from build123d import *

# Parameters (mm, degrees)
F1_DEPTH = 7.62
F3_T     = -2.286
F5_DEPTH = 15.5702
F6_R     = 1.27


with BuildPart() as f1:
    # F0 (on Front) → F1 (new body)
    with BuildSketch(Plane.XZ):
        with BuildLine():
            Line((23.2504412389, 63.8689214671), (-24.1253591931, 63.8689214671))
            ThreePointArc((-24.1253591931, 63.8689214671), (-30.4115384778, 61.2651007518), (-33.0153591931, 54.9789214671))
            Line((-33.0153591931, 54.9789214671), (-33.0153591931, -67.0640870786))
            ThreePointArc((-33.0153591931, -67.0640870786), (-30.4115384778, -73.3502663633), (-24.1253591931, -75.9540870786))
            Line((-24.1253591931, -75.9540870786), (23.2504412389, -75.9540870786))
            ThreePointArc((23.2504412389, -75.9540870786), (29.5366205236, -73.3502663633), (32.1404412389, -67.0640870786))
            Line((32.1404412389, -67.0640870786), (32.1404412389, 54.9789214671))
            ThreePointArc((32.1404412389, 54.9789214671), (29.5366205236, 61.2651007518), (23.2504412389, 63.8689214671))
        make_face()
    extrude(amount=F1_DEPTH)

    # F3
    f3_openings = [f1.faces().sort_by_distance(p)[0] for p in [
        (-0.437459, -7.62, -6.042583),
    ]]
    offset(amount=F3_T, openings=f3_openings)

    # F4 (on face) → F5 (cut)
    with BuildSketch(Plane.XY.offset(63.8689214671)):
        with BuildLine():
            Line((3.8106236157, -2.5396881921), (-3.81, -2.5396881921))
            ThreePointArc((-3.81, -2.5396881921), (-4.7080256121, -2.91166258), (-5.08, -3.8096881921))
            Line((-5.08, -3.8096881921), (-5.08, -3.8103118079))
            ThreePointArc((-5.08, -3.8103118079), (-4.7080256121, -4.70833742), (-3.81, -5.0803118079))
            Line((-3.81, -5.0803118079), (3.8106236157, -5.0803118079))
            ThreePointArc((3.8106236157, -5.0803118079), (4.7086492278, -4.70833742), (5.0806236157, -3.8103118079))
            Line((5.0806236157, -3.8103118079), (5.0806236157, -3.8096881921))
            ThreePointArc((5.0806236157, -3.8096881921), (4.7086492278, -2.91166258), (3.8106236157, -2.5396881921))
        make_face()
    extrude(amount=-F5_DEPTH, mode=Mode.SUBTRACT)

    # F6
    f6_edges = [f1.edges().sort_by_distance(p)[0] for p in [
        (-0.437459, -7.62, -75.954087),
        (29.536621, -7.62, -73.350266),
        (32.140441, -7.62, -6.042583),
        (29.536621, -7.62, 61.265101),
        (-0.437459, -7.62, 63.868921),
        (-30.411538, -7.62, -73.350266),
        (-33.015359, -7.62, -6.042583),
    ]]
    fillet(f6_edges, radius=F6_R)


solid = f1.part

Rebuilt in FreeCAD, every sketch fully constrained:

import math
import FreeCAD as App
import Part
import Sketcher
from FreeCAD import Vector
Q = App.Units.Quantity


def edges_at(feature, points):
    """Names of the edges that pass closest to the given points."""
    edges = feature.Shape.Edges
    near = lambda p: min(range(len(edges)), key=lambda i: edges[i].distToShape(Part.Vertex(*p))[0])
    return sorted({f"Edge{near(p) + 1}" for p in points})


def faces_at(feature, points):
    """Names of the faces that lie closest to the given points."""
    faces = feature.Shape.Faces
    near = lambda p: min(range(len(faces)), key=lambda i: faces[i].distToShape(Part.Vertex(*p))[0])
    return sorted({f"Face{near(p) + 1}" for p in points})

doc = App.newDocument("Part")
body = doc.addObject("PartDesign::Body", "Body")

# Sketch on XZ plane
sketch1 = doc.addObject("Sketcher::SketchObject", "Sketch")
body.addObject(sketch1)
sketch1.AttachmentSupport = (doc.XZ_Plane, [""])
sketch1.MapMode = "FlatFace"
sketch1.addGeometry([
    Part.LineSegment(Vector(23.250441, 63.868921, 0), Vector(-24.125359, 63.868921, 0)),  # 0
    Part.ArcOfCircle(Part.Circle(Vector(-24.125359, 54.978921, 0), Vector(0, 0, 1), 8.89), math.radians(90), math.radians(180)),  # 1
    Part.LineSegment(Vector(-33.015359, 54.978921, 0), Vector(-33.015359, -67.064087, 0)),  # 2
    Part.ArcOfCircle(Part.Circle(Vector(-24.125359, -67.064087, 0), Vector(0, 0, 1), 8.89), math.radians(-180), math.radians(-90)),  # 3
    Part.LineSegment(Vector(-24.125359, -75.954087, 0), Vector(23.250441, -75.954087, 0)),  # 4
    Part.ArcOfCircle(Part.Circle(Vector(23.250441, -67.064087, 0), Vector(0, 0, 1), 8.89), math.radians(-90), math.radians(0)),  # 5
    Part.LineSegment(Vector(32.140441, -67.064087, 0), Vector(32.140441, 54.978921, 0)),  # 6
    Part.ArcOfCircle(Part.Circle(Vector(23.250441, 54.978921, 0), Vector(0, 0, 1), 8.89), math.radians(0), math.radians(90)),  # 7
], False)
sketch1.addConstraint([
    Sketcher.Constraint("Tangent", 0, 2, 1, 1),
    Sketcher.Constraint("Tangent", 1, 2, 2, 1),
    Sketcher.Constraint("Tangent", 2, 2, 3, 1),
    Sketcher.Constraint("Tangent", 3, 2, 4, 1),
    Sketcher.Constraint("Tangent", 4, 2, 5, 1),
    Sketcher.Constraint("Tangent", 5, 2, 6, 1),
    Sketcher.Constraint("Tangent", 6, 2, 7, 1),
    Sketcher.Constraint("Tangent", 7, 2, 0, 1),
    Sketcher.Constraint("Horizontal", 0),
    Sketcher.Constraint("Vertical", 2),
    Sketcher.Constraint("Horizontal", 4),
    Sketcher.Constraint("Vertical", 6),
    Sketcher.Constraint("Equal", 1, 3),
    Sketcher.Constraint("Equal", 3, 5),
    Sketcher.Constraint("Equal", 5, 7),
    Sketcher.Constraint("Radius", 1, Q("0.35 in")),
    Sketcher.Constraint("DistanceX", 0, 2, 0, 1, 47.3758),
    Sketcher.Constraint("DistanceY", 2, 2, 2, 1, 122.043009),
    Sketcher.Constraint("DistanceX", 1, 3, -1, 1, 24.125359),
    Sketcher.Constraint("DistanceY", -1, 1, 1, 3, 54.978921),
])
pad1 = doc.addObject("PartDesign::Pad", "Pad")
body.addObject(pad1)
pad1.Profile = sketch1
pad1.Length = Q("0.3 in")
doc.recompute()

thickness = doc.addObject("PartDesign::Thickness", "Thickness")
body.addObject(thickness)
thickness.Base = (pad1, faces_at(pad1, [(-0.437, -7.62, -6.043)]))
thickness.Value = Q("0.09 in")
thickness.Reversed = True
thickness.Join = "Arc"

# Sketch on XY plane
sketch2 = doc.addObject("Sketcher::SketchObject", "Sketch001")
body.addObject(sketch2)
sketch2.AttachmentSupport = (doc.XY_Plane, [""])
sketch2.MapMode = "FlatFace"
sketch2.AttachmentOffset = App.Placement(Vector(0, 0, 63.868921), App.Rotation())
sketch2.addGeometry([
    Part.LineSegment(Vector(3.810624, -2.539688, 0), Vector(-3.81, -2.539688, 0)),  # 0
    Part.ArcOfCircle(Part.Circle(Vector(-3.81, -3.809688, 0), Vector(0, 0, 1), 1.27), math.radians(90), math.radians(180)),  # 1
    Part.LineSegment(Vector(-5.08, -3.809688, 0), Vector(-5.08, -3.810312, 0)),  # 2
    Part.ArcOfCircle(Part.Circle(Vector(-3.81, -3.810312, 0), Vector(0, 0, 1), 1.27), math.radians(180), math.radians(270)),  # 3
    Part.LineSegment(Vector(-3.81, -5.080312, 0), Vector(3.810624, -5.080312, 0)),  # 4
    Part.ArcOfCircle(Part.Circle(Vector(3.810624, -3.810312, 0), Vector(0, 0, 1), 1.27), math.radians(-90), math.radians(0)),  # 5
    Part.LineSegment(Vector(5.080624, -3.810312, 0), Vector(5.080624, -3.809688, 0)),  # 6
    Part.ArcOfCircle(Part.Circle(Vector(3.810624, -3.809688, 0), Vector(0, 0, 1), 1.27), math.radians(0), math.radians(90)),  # 7
], False)
sketch2.addConstraint([
    Sketcher.Constraint("Tangent", 0, 2, 1, 1),
    Sketcher.Constraint("Tangent", 1, 2, 2, 1),
    Sketcher.Constraint("Coincident", 2, 2, 3, 1),
    Sketcher.Constraint("Tangent", 3, 2, 4, 1),
    Sketcher.Constraint("Tangent", 4, 2, 5, 1),
    Sketcher.Constraint("Tangent", 5, 2, 6, 1),
    Sketcher.Constraint("Coincident", 6, 2, 7, 1),
    Sketcher.Constraint("Tangent", 7, 2, 0, 1),
    Sketcher.Constraint("Horizontal", 0),
    Sketcher.Constraint("Horizontal", 4),
    Sketcher.Constraint("Equal", 1, 3),
    Sketcher.Constraint("Equal", 3, 5),
    Sketcher.Constraint("Equal", 5, 7),
    Sketcher.Constraint("Horizontal", 7, 3, 1, 2),
    Sketcher.Constraint("Horizontal", 5, 3, 2, 2),
    Sketcher.Constraint("Horizontal", 2, 2, 5, 2),
    Sketcher.Constraint("Horizontal", 1, 2, 6, 2),
    Sketcher.Constraint("Radius", 1, Q("0.05 in")),
    Sketcher.Constraint("DistanceX", 1, 2, -1, 1, Q("0.2 in")),
    Sketcher.Constraint("DistanceX", 0, 2, 0, 1, 7.620624),
    Sketcher.Constraint("DistanceY", 2, 2, 2, 1, 0.000624),
    Sketcher.Constraint("DistanceY", 1, 3, -1, 1, 3.809688),
])
pocket1 = doc.addObject("PartDesign::Pocket", "Pocket")
body.addObject(pocket1)
pocket1.Profile = sketch2
pocket1.Length = Q("0.613 in")
doc.recompute()

fillet = doc.addObject("PartDesign::Fillet", "Fillet")
body.addObject(fillet)
fillet.Base = (pocket1, edges_at(pocket1, [
    (-0.437, -7.62, -75.954),
    (29.537, -7.62, -73.35),
    (32.14, -7.62, -6.043),
    (29.537, -7.62, 61.265),
    (-0.437, -7.62, 63.869),
    (-30.412, -7.62, -73.35),
    (-33.015, -7.62, -6.043),
]))
fillet.Radius = Q("0.05 in")

doc.recompute()
